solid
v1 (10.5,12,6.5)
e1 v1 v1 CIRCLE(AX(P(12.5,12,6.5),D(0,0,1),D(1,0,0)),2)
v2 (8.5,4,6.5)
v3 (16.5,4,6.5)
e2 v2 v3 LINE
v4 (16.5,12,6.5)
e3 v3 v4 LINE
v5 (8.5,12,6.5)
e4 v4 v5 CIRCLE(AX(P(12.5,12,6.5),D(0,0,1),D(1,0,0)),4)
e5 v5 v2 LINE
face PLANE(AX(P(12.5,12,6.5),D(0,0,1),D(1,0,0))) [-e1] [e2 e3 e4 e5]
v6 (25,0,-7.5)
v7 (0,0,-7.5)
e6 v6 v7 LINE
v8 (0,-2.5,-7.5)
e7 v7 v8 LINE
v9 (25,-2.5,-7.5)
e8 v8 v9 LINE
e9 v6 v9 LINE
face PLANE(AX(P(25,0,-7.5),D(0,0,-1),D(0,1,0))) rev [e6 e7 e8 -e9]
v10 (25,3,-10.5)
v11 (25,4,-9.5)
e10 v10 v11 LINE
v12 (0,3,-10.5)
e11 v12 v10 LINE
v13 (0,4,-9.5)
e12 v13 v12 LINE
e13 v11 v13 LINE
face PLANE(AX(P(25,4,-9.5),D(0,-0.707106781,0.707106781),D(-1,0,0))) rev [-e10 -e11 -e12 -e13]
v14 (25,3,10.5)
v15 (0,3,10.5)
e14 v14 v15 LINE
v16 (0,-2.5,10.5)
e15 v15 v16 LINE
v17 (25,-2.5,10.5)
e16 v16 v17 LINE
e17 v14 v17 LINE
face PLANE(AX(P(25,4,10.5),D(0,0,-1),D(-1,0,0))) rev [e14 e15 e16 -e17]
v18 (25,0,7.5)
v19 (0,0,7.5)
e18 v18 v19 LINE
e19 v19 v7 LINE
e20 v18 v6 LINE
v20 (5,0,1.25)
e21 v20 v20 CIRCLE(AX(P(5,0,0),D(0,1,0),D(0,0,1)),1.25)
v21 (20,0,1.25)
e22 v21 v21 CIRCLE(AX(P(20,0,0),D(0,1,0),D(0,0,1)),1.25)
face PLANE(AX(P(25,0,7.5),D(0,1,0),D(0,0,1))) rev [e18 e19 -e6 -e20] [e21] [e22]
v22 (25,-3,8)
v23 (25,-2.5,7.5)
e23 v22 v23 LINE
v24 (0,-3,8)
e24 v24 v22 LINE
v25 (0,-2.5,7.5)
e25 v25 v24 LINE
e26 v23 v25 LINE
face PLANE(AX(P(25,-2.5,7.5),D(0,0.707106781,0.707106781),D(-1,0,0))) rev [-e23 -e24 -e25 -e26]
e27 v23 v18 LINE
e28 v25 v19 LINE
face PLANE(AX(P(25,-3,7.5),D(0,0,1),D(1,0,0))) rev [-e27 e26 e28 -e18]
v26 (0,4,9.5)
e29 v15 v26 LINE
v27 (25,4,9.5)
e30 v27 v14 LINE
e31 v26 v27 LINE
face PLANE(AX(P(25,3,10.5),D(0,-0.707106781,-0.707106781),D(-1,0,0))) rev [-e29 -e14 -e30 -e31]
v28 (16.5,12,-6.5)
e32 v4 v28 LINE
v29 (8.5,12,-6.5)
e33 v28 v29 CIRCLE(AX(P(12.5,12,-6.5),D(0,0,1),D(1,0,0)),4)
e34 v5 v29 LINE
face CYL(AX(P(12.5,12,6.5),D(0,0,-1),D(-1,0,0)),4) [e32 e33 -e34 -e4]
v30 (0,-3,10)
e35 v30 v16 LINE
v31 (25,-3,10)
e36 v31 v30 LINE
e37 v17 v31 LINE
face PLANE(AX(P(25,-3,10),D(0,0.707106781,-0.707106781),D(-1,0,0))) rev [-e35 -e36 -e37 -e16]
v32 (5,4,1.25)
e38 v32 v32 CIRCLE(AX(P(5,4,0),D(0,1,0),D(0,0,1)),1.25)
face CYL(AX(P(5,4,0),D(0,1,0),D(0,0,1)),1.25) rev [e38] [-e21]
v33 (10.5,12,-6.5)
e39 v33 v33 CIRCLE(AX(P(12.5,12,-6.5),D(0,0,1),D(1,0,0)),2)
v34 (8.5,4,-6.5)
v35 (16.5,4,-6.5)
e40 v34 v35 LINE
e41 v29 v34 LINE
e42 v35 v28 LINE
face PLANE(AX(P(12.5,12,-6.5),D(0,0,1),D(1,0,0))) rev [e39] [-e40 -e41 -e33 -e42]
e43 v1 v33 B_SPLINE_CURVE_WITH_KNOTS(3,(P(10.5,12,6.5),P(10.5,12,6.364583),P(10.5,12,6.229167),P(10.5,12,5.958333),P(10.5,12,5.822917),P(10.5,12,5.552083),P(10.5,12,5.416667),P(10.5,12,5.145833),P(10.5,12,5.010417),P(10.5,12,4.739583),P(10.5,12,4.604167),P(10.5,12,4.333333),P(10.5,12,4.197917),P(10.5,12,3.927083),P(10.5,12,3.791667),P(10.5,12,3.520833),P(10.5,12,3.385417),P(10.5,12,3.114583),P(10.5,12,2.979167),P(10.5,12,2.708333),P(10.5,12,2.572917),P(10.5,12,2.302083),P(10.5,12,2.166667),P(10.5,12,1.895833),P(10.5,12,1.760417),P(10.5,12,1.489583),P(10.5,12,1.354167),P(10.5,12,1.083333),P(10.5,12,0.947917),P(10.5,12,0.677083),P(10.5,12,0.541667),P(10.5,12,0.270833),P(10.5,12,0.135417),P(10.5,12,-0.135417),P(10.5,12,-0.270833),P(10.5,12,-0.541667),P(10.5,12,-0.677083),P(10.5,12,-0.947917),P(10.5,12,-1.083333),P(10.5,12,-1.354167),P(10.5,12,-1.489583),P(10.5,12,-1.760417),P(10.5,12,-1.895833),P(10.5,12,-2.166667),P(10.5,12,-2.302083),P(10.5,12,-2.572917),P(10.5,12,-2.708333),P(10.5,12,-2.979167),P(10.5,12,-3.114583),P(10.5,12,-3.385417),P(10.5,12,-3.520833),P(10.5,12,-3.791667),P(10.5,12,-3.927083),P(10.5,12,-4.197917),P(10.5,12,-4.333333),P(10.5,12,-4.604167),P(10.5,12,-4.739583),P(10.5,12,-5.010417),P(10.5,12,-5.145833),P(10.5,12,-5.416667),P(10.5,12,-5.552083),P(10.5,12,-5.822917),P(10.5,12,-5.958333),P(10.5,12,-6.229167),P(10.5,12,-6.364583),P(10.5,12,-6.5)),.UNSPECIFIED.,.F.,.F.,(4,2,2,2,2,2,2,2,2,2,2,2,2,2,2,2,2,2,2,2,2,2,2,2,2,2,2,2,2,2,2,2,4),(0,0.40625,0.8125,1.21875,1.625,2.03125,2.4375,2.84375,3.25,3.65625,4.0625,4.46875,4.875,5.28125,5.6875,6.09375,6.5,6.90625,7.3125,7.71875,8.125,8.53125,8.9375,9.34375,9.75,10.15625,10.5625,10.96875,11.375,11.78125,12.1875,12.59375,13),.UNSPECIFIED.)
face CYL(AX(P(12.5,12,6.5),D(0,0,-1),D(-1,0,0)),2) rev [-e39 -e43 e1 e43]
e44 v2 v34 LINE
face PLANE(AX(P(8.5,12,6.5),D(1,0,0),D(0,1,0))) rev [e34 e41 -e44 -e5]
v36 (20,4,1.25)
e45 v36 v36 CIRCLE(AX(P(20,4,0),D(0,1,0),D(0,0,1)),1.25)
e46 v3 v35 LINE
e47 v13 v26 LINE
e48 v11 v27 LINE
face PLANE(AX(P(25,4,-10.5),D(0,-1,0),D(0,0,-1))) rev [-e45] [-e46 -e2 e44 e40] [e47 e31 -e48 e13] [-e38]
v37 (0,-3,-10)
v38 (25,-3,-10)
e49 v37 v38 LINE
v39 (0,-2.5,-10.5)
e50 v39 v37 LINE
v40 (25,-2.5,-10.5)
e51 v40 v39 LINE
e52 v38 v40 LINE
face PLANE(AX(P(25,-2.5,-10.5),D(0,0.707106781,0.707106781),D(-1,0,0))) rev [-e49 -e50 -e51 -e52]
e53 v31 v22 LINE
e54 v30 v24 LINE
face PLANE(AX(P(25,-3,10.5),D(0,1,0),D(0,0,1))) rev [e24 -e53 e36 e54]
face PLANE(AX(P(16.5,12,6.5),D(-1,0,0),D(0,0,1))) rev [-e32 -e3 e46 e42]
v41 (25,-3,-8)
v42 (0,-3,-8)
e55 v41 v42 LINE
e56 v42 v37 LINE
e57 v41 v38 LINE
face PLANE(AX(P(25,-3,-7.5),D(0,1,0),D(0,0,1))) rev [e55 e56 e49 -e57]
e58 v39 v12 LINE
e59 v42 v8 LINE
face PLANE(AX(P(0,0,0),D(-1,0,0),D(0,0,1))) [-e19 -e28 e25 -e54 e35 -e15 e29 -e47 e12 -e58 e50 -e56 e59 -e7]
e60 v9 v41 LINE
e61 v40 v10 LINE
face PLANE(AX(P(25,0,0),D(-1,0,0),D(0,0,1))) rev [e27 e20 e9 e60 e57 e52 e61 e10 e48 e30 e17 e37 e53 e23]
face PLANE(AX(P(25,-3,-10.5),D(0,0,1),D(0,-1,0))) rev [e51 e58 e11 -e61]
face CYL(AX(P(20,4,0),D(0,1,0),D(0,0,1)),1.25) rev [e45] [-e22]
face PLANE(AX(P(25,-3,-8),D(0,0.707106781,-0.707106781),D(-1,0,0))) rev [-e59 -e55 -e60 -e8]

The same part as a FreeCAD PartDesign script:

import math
import FreeCAD as App
import Part
import Sketcher

V = App.Vector


def edges_at(feature, points):
    """Names of the edges that pass closest to the given points."""
    edges = feature.Shape.Edges
    near = lambda p: min(range(len(edges)), key=lambda i: edges[i].distToShape(Part.Vertex(*p))[0])
    return sorted({f"Edge{near(p) + 1}" for p in points})


def add_polygon(sketch, points):
    """Adds a closed chain of lines whose ends are joined by coincident constraints."""
    first, n = sketch.GeometryCount, len(points)
    for a, b in zip(points, points[1:] + points[:1]):
        sketch.addGeometry(Part.LineSegment(App.Vector(*a, 0), App.Vector(*b, 0)), False)
    for i in range(n):
        sketch.addConstraint(Sketcher.Constraint("Coincident", first + i, 2, first + (i + 1) % n, 1))

doc = App.newDocument("Part")
params = doc.addObject("Spreadsheet::Sheet", "Params")
for row, (alias, value) in enumerate([
    ("sketch1_width", "3 mm"),
    ("sketch1_width2", "7 mm"),
    ("sketch1_height", "15 mm"),
    ("pad1_length", "25 mm"),
    ("sketch2_diameter", "4 mm"),
    ("sketch2_radius", "4 mm"),
    ("pad2_length", "13 mm"),
    ("sketch3_diameter", "2.5 mm"),
    ("hole_diameter", "2.5 mm"),
    ("chamfer_size", "1 mm"),
    ("chamfer2_size", "0.5 mm"),
], start=1):
    params.set(f"A{row}", alias)
    params.set(f"B{row}", "=" + value)
    params.setAlias(f"B{row}", alias)

body = doc.addObject("PartDesign::Body", "Body")

sketch1 = doc.addObject("Sketcher::SketchObject", "Sketch")
body.addObject(sketch1)
sketch1.AttachmentSupport = (doc.YZ_Plane, [""])
sketch1.MapMode = "FlatFace"
add_polygon(sketch1, [(0, 7.5), (0, -7.5), (-3, -7.5), (-3, -10.5), (4, -10.5), (4, 10.5), (-3, 10.5), (-3, 7.5)])
sketch1.addConstraint(Sketcher.Constraint("Vertical", 0))
sketch1.addConstraint(Sketcher.Constraint("Horizontal", 1))
sketch1.addConstraint(Sketcher.Constraint("Vertical", 2))
sketch1.addConstraint(Sketcher.Constraint("Horizontal", 3))
sketch1.addConstraint(Sketcher.Constraint("Vertical", 4))
sketch1.addConstraint(Sketcher.Constraint("Horizontal", 5))
sketch1.addConstraint(Sketcher.Constraint("Vertical", 6))
sketch1.addConstraint(Sketcher.Constraint("Horizontal", 7))
sketch1.addConstraint(Sketcher.Constraint("Symmetric", 0, 2, 7, 2, -1, 1))
sketch1.addConstraint(Sketcher.Constraint("Symmetric", 2, 2, 5, 2, -1))
sketch1.addConstraint(Sketcher.Constraint("Equal", 7, 2))
sketch1.addConstraint(Sketcher.Constraint("DistanceX", 1, 2, 1, 1, 3.0))
sketch1.addConstraint(Sketcher.Constraint("DistanceX", 3, 1, 3, 2, 7.0))
sketch1.addConstraint(Sketcher.Constraint("DistanceY", 0, 2, 0, 1, 15.0))
sketch1.setExpression("Constraints[19]", "Params.sketch1_width")
sketch1.setExpression("Constraints[20]", "Params.sketch1_width2")
sketch1.setExpression("Constraints[21]", "Params.sketch1_height")
pad1 = doc.addObject("PartDesign::Pad", "Pad")
body.addObject(pad1)
pad1.Profile = sketch1
pad1.setExpression("Length", "Params.pad1_length")

sketch2 = doc.addObject("Sketcher::SketchObject", "Sketch001")
body.addObject(sketch2)
sketch2.AttachmentSupport = (doc.XY_Plane, [""])
sketch2.MapMode = "FlatFace"
sketch2.addGeometry(Part.LineSegment(V(8.5, 12, 0), V(8.5, 4, 0)), False)
sketch2.addGeometry(Part.LineSegment(V(8.5, 4, 0), V(16.5, 4, 0)), False)
sketch2.addGeometry(Part.LineSegment(V(16.5, 4, 0), V(16.5, 12, 0)), False)
sketch2.addGeometry(Part.ArcOfCircle(Part.Circle(V(12.5, 12, 0), V(0, 0, 1), 4), math.radians(0), math.radians(180)), False)
sketch2.addGeometry(Part.Circle(V(12.5, 12, 0), V(0, 0, 1), 2), False)
sketch2.addConstraint(Sketcher.Constraint("Coincident", 0, 2, 1, 1))
sketch2.addConstraint(Sketcher.Constraint("Coincident", 1, 2, 2, 1))
sketch2.addConstraint(Sketcher.Constraint("Tangent", 2, 2, 3, 1))
sketch2.addConstraint(Sketcher.Constraint("Tangent", 3, 2, 0, 1))
sketch2.addConstraint(Sketcher.Constraint("Vertical", 0))
sketch2.addConstraint(Sketcher.Constraint("Horizontal", 1))
sketch2.addConstraint(Sketcher.Constraint("Vertical", 2))
sketch2.addConstraint(Sketcher.Constraint("Coincident", 4, 3, 3, 3))
sketch2.addConstraint(Sketcher.Constraint("Equal", 1, 0))
sketch2.addConstraint(Sketcher.Constraint("Diameter", 4, 4.0))
sketch2.addConstraint(Sketcher.Constraint("Radius", 3, 4.0))
sketch2.addConstraint(Sketcher.Constraint("DistanceY", -1, 1, 3, 3, 12.0))
sketch2.addConstraint(Sketcher.Constraint("DistanceX", -1, 1, 3, 3, 12.5))
sketch2.setExpression("Constraints[9]", "Params.sketch2_diameter")
sketch2.setExpression("Constraints[10]", "Params.sketch2_radius")
pad2 = doc.addObject("PartDesign::Pad", "Pad001")
body.addObject(pad2)
pad2.Profile = sketch2
pad2.setExpression("Length", "Params.pad2_length")
pad2.Midplane = True

sketch3 = doc.addObject("Sketcher::SketchObject", "Sketch002")
body.addObject(sketch3)
sketch3.AttachmentSupport = (doc.XZ_Plane, [""])
sketch3.MapMode = "FlatFace"
sketch3.AttachmentOffset = App.Placement(V(0, 0, -4), App.Rotation())
sketch3.addGeometry(Part.Circle(V(5, 0, 0), V(0, 0, 1), 1.2), False)
sketch3.addGeometry(Part.Circle(V(20, 0, 0), V(0, 0, 1), 1.2), False)
sketch3.addConstraint(Sketcher.Constraint("Equal", 0, 1))
sketch3.addConstraint(Sketcher.Constraint("PointOnObject", 0, 3, -1))
sketch3.addConstraint(Sketcher.Constraint("PointOnObject", 1, 3, -1))
sketch3.addConstraint(Sketcher.Constraint("Diameter", 0, 2.5))
sketch3.addConstraint(Sketcher.Constraint("DistanceX", -1, 1, 0, 3, 5.0))
sketch3.addConstraint(Sketcher.Constraint("DistanceX", -1, 1, 1, 3, 20.0))
sketch3.setExpression("Constraints[3]", "Params.sketch3_diameter")
doc.recompute()
hole = doc.addObject("PartDesign::Hole", "Hole")
body.addObject(hole)
hole.Profile = sketch3
hole.ThreadType = "None"
hole.setExpression("Diameter", "Params.hole_diameter")
hole.DepthType = "ThroughAll"
hole.Reversed = True
doc.recompute()

chamfer = doc.addObject("PartDesign::Chamfer", "Chamfer")
body.addObject(chamfer)
chamfer.Base = (hole, edges_at(hole, [(12.5, 4, 10.5), (12.5, 4, -10.5)]))
chamfer.setExpression("Size", "Params.chamfer_size")
doc.recompute()

chamfer2 = doc.addObject("PartDesign::Chamfer", "Chamfer001")
body.addObject(chamfer2)
chamfer2.Base = (chamfer, edges_at(chamfer, [
    (12.5, -3, 7.5),
    (12.5, -3, 10.5),
    (12.5, -3, -10.5),
    (12.5, -3, -7.5),
]))
chamfer2.setExpression("Size", "Params.chamfer2_size")

doc.recompute()
